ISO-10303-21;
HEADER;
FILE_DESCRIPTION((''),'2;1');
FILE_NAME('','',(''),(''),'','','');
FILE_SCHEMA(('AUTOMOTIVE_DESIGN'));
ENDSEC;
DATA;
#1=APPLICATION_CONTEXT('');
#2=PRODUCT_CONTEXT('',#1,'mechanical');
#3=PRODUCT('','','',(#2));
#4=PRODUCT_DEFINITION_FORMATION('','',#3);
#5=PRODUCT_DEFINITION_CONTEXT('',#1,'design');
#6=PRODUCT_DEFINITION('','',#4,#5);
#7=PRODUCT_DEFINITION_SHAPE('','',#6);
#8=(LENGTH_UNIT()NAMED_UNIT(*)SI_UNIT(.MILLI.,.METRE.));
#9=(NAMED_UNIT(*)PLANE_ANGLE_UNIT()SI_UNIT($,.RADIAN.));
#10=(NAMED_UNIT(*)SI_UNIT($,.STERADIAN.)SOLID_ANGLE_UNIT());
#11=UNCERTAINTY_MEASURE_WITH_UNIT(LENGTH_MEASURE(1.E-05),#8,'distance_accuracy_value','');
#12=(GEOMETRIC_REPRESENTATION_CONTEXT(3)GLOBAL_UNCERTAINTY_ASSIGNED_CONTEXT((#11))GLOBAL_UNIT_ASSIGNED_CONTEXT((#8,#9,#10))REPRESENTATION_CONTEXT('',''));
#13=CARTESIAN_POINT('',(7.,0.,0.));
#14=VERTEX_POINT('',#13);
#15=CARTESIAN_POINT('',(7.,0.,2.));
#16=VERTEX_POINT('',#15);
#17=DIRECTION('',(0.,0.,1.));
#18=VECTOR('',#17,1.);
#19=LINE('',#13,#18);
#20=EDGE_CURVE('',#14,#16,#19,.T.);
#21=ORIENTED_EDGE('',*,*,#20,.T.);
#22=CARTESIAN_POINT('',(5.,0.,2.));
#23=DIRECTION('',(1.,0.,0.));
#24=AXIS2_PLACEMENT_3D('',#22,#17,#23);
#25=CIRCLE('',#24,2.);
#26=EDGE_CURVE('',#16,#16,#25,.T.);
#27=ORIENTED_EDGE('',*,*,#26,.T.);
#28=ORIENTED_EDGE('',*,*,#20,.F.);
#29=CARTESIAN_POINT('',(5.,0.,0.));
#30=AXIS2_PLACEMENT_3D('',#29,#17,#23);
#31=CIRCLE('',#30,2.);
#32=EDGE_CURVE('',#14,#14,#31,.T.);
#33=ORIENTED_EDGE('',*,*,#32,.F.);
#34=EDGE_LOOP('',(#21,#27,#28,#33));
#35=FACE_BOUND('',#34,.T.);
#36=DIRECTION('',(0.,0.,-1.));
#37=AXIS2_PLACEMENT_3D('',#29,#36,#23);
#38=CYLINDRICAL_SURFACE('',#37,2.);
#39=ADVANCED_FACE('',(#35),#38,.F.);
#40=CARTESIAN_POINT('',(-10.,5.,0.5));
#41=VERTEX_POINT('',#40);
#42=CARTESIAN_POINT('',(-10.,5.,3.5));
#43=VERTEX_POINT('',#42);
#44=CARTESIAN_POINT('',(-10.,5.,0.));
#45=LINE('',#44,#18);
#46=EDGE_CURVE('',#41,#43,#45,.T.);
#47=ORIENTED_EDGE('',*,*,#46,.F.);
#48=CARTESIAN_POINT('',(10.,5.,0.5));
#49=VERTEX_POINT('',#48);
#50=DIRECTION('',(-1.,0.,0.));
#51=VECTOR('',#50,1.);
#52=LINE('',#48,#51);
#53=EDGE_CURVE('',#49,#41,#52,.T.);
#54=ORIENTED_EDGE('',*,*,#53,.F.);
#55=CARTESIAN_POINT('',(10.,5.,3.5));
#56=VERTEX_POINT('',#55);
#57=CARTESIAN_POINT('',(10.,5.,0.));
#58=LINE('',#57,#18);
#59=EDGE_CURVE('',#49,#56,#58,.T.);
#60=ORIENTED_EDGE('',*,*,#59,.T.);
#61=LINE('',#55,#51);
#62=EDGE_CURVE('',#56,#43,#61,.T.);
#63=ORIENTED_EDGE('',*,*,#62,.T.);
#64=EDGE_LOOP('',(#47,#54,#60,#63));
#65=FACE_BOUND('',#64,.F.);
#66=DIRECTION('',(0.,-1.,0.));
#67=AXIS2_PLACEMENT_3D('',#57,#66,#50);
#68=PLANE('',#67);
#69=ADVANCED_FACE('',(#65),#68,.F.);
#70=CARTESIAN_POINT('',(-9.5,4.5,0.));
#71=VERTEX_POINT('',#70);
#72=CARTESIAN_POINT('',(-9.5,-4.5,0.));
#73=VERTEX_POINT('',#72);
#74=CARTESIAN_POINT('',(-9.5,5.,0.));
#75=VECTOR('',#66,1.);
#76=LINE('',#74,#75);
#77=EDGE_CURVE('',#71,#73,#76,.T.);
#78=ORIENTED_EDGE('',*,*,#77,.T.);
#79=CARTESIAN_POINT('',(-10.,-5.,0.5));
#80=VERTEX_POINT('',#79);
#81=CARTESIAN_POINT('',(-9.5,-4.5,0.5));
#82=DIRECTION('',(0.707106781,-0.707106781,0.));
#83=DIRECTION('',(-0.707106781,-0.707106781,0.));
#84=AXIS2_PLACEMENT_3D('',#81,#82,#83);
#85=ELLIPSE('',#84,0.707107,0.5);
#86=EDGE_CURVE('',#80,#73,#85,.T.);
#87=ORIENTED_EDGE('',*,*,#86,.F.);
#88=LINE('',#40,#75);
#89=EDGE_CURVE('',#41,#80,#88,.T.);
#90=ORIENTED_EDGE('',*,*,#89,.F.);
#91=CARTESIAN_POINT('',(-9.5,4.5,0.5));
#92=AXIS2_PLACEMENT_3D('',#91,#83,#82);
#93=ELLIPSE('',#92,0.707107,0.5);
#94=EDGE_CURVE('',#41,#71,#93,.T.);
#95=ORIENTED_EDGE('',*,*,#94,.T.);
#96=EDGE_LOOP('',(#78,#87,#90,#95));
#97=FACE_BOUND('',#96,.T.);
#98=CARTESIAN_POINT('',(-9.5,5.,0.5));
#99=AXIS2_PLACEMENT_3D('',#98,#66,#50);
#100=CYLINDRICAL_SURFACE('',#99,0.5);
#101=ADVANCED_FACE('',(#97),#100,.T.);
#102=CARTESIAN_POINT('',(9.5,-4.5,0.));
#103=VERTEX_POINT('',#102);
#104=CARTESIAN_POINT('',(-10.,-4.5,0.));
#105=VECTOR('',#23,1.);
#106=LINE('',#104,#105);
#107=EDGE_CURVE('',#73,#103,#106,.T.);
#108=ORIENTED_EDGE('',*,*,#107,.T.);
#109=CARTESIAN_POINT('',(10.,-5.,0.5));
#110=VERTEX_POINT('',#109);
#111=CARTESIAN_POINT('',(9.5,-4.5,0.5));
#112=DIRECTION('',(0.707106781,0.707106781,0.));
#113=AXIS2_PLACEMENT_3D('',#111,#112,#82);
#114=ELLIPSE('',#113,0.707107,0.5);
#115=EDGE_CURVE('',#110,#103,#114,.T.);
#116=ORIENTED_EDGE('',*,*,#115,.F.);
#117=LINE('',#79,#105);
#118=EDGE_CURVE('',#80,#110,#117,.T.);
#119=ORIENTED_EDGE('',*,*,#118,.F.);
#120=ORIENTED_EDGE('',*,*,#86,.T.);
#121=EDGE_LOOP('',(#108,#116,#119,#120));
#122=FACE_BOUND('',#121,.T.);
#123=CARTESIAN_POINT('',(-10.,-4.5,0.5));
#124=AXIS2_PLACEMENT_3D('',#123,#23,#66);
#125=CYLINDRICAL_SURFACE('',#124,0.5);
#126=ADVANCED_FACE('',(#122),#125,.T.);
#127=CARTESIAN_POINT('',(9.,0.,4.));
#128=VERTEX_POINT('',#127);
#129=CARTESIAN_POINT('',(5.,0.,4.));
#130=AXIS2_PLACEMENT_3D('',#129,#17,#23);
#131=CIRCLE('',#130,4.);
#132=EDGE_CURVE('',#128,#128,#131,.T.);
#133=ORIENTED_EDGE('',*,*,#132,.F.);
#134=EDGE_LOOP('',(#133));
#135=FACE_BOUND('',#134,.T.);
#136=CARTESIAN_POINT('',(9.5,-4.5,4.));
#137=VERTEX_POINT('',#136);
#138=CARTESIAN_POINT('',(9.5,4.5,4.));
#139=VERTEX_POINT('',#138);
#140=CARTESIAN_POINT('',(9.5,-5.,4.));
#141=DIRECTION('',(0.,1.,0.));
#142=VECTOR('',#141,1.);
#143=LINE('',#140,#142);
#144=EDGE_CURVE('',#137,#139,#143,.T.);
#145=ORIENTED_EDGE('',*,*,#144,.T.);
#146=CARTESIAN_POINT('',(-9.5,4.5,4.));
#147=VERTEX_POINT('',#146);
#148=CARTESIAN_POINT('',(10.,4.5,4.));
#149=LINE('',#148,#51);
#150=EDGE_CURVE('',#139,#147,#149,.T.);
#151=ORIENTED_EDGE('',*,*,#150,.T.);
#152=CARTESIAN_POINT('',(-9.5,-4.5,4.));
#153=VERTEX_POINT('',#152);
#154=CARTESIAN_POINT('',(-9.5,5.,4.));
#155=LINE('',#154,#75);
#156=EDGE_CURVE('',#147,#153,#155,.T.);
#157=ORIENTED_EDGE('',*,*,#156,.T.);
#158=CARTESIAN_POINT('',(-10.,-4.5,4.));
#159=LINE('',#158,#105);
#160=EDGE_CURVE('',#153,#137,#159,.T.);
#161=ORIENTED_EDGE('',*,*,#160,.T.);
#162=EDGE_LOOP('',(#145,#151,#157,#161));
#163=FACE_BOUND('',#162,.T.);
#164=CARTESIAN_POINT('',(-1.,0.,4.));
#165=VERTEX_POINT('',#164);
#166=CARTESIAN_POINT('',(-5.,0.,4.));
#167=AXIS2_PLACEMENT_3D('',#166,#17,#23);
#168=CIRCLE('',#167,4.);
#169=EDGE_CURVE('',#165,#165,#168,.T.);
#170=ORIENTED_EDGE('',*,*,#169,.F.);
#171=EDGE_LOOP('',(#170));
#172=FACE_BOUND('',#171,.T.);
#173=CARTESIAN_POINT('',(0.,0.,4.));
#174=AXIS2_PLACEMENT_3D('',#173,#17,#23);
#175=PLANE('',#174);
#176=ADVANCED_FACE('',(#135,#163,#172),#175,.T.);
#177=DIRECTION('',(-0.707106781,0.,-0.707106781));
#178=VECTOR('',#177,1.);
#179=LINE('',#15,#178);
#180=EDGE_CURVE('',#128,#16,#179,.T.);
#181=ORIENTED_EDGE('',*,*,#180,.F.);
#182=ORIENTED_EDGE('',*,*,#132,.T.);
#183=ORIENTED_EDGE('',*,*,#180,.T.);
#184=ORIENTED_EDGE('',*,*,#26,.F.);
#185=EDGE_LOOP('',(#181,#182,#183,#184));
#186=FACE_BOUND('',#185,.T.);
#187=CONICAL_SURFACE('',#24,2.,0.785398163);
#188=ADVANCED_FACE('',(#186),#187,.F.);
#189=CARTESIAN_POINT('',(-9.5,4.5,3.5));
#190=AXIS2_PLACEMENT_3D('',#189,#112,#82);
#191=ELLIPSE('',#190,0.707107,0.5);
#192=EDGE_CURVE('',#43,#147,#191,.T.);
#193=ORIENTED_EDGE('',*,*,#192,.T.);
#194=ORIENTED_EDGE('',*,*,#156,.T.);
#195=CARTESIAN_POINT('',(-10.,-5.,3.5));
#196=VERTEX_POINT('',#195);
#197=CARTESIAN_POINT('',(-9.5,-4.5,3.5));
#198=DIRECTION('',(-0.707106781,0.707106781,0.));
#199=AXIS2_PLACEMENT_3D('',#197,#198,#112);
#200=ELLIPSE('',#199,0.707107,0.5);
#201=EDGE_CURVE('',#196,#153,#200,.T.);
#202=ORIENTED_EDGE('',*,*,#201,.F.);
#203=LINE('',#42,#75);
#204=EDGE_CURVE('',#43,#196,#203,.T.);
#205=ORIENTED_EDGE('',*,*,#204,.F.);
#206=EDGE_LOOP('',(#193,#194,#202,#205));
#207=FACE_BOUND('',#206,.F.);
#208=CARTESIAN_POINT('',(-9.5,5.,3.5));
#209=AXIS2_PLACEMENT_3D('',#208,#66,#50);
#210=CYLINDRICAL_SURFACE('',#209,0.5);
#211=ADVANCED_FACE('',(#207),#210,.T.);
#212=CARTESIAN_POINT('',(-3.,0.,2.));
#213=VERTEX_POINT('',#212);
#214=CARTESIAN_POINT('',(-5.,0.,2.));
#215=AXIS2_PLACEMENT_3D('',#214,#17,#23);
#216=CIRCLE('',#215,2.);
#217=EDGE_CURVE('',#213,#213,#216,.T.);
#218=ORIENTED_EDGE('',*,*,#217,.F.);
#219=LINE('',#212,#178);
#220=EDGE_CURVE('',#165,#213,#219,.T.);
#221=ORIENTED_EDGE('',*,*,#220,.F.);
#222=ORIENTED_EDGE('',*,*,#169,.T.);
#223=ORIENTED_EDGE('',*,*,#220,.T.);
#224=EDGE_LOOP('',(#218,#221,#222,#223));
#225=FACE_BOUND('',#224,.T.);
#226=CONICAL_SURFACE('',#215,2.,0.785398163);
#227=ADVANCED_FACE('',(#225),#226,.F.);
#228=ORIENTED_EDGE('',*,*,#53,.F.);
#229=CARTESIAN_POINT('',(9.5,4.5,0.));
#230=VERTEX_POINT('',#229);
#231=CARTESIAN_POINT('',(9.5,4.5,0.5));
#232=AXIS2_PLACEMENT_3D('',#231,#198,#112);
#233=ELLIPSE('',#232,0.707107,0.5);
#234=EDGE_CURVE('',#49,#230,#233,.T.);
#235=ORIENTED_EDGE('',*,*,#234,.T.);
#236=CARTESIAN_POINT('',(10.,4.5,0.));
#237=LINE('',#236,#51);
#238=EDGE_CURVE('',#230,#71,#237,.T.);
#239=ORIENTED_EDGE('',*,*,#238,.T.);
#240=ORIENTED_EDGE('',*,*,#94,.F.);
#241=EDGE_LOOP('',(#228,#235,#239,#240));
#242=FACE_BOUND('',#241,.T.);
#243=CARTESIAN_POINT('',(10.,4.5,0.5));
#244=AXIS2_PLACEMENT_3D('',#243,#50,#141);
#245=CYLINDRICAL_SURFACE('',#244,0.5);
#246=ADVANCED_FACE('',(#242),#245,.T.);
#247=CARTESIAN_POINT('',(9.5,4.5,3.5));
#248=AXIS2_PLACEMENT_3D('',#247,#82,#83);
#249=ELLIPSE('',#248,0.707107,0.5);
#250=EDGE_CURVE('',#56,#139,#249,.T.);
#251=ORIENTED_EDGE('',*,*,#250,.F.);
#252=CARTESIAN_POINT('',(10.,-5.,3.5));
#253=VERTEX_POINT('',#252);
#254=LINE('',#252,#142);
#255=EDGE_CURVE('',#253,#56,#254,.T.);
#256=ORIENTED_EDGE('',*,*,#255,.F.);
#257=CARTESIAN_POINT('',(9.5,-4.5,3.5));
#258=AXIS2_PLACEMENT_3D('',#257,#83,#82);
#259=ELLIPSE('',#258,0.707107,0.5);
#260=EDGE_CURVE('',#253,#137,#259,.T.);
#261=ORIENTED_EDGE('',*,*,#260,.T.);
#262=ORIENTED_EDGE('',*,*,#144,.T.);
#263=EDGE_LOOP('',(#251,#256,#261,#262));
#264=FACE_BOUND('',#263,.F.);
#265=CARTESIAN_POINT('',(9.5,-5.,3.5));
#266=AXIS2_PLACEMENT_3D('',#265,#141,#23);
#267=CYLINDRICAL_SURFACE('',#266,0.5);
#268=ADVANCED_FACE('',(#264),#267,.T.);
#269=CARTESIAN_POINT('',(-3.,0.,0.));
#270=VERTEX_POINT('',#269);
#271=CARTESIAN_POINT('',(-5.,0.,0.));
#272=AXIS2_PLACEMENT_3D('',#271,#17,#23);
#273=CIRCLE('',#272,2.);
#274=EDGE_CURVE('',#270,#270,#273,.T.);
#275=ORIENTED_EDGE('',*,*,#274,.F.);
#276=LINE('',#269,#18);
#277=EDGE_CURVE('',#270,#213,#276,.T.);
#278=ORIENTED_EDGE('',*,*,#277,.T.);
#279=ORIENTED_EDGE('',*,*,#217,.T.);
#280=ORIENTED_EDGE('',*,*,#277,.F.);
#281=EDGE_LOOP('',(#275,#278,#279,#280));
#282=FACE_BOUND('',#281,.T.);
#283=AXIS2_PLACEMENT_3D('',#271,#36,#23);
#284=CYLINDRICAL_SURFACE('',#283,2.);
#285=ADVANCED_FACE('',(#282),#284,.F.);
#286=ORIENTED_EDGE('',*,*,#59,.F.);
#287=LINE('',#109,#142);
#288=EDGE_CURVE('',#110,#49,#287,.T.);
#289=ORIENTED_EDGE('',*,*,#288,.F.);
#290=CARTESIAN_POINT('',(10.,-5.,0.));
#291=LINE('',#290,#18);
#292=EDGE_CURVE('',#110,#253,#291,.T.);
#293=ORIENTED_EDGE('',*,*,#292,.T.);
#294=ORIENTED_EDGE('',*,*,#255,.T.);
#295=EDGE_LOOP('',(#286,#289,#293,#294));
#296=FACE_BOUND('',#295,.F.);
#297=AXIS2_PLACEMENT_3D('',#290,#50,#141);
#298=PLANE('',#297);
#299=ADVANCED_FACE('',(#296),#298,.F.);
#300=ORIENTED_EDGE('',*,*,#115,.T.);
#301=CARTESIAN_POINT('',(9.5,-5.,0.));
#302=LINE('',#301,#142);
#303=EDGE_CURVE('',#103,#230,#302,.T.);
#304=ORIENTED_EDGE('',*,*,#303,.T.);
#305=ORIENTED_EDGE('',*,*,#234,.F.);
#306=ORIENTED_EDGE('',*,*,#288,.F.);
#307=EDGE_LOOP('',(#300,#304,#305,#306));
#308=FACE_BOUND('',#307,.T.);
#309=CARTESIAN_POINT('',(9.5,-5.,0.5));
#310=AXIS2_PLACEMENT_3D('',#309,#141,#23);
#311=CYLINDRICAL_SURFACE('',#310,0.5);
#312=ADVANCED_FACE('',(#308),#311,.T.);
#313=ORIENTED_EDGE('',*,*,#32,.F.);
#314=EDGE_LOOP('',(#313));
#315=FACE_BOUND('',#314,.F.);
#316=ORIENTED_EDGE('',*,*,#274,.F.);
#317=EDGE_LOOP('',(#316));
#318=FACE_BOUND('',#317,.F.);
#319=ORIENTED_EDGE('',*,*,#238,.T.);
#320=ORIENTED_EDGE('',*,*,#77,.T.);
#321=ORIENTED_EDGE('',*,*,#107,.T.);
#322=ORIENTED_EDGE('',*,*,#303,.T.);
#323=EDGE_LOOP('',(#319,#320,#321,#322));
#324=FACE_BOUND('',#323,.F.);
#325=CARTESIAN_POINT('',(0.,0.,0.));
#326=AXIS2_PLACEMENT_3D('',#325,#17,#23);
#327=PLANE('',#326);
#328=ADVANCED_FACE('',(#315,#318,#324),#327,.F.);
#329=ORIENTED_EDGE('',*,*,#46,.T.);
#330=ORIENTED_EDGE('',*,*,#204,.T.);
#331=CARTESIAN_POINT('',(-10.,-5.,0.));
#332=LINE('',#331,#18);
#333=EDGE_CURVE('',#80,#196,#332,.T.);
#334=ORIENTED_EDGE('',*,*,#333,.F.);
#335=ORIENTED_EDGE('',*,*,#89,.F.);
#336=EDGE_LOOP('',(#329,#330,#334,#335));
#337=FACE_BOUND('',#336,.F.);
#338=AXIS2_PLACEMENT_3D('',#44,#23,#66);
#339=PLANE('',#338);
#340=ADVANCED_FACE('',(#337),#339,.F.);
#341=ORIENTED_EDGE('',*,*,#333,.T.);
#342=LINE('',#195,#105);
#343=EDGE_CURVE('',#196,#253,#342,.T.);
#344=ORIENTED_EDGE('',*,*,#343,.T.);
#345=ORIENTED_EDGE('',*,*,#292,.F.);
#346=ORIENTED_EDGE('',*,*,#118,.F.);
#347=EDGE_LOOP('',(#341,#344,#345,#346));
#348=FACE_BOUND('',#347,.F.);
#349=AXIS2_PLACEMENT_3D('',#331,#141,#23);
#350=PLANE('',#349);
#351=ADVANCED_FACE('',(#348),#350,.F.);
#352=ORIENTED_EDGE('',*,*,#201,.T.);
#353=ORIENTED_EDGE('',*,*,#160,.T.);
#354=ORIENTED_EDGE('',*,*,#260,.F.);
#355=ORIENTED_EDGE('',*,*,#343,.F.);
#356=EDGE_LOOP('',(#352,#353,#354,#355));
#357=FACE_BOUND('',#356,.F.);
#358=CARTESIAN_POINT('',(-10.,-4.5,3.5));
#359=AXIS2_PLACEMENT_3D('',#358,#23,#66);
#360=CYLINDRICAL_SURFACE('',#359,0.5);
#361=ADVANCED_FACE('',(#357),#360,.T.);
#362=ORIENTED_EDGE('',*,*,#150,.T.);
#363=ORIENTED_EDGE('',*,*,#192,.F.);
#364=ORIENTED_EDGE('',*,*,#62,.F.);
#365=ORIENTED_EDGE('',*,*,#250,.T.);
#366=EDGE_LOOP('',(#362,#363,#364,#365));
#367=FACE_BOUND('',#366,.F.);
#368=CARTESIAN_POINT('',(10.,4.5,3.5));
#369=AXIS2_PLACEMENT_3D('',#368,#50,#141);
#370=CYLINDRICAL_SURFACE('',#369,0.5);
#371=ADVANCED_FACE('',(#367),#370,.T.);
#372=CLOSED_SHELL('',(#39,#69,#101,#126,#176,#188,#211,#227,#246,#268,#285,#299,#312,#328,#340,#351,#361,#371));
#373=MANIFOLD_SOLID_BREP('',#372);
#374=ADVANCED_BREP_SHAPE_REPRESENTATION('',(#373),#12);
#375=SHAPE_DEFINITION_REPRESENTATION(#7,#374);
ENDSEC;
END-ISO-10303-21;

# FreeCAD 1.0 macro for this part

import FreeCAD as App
import Part
import Sketcher
Q = App.Units.Quantity


def edges_at(feature, points):
    """Names of the edges that pass closest to the given points."""
    edges = feature.Shape.Edges
    near = lambda p: min(range(len(edges)), key=lambda i: edges[i].distToShape(Part.Vertex(*p))[0])
    return sorted({f"Edge{near(p) + 1}" for p in points})


def add_polygon(sketch, points):
    """Adds a closed chain of lines whose ends are joined by coincident constraints."""
    first, n = sketch.GeometryCount, len(points)
    for a, b in zip(points, points[1:] + points[:1]):
        sketch.addGeometry(Part.LineSegment(App.Vector(*a, 0), App.Vector(*b, 0)), False)
    for i in range(n):
        sketch.addConstraint(Sketcher.Constraint("Coincident", first + i, 2, first + (i + 1) % n, 1))

doc = App.newDocument("Part")
body = doc.addObject("PartDesign::Body", "Body")

# Sketch on XY plane
sketch1 = doc.addObject("Sketcher::SketchObject", "Sketch")
body.addObject(sketch1)
sketch1.AttachmentSupport = (doc.XY_Plane, [""])
sketch1.MapMode = "FlatFace"
add_polygon(sketch1, [(10, -5), (10, 5), (-10, 5), (-10, -5)])  # lines 0-3
sketch1.addGeometry(Part.Circle(App.Vector(-5, 0, 0), App.Vector(0, 0, 1), 2), False)  # 4
sketch1.addGeometry(Part.Circle(App.Vector(5, 0, 0), App.Vector(0, 0, 1), 2), False)  # 5
sketch1.addConstraint(Sketcher.Constraint("Vertical", 0))
sketch1.addConstraint(Sketcher.Constraint("Horizontal", 1))
sketch1.addConstraint(Sketcher.Constraint("Vertical", 2))
sketch1.addConstraint(Sketcher.Constraint("Horizontal", 3))
sketch1.addConstraint(Sketcher.Constraint("Equal", 4, 5))
sketch1.addConstraint(Sketcher.Constraint("Symmetric", 4, 3, 5, 3, -1, 1))
sketch1.addConstraint(Sketcher.Constraint("Symmetric", 0, 2, 2, 2, -1, 1))
sketch1.addConstraint(Sketcher.Constraint("PointOnObject", 4, 3, -1))
sketch1.addConstraint(Sketcher.Constraint("Diameter", 4, Q("4 mm")))
sketch1.addConstraint(Sketcher.Constraint("DistanceX", 1, 2, 1, 1, Q("20 mm")))
sketch1.addConstraint(Sketcher.Constraint("DistanceY", 0, 1, 0, 2, Q("10 mm")))
sketch1.addConstraint(Sketcher.Constraint("DistanceX", 4, 3, -1, 1, Q("5 mm")))
pad1 = doc.addObject("PartDesign::Pad", "Pad")
body.addObject(pad1)
pad1.Profile = sketch1
pad1.Length = 4
doc.recompute()

fillet = doc.addObject("PartDesign::Fillet", "Fillet")
body.addObject(fillet)
fillet.Base = (pad1, edges_at(pad1, [
    (0, -5, 4),
    (-10, 0, 4),
    (0, 5, 4),
    (10, 0, 4),
    (-10, 0, 0),
    (0, -5, 0),
    (10, 0, 0),
    (0, 5, 0),
]))
fillet.Radius = 0.5
doc.recompute()

chamfer = doc.addObject("PartDesign::Chamfer", "Chamfer")
body.addObject(chamfer)
chamfer.Base = (fillet, edges_at(fillet, [(3, 0, 4), (-7, 0, 4)]))
chamfer.Size = 2

doc.recompute()
